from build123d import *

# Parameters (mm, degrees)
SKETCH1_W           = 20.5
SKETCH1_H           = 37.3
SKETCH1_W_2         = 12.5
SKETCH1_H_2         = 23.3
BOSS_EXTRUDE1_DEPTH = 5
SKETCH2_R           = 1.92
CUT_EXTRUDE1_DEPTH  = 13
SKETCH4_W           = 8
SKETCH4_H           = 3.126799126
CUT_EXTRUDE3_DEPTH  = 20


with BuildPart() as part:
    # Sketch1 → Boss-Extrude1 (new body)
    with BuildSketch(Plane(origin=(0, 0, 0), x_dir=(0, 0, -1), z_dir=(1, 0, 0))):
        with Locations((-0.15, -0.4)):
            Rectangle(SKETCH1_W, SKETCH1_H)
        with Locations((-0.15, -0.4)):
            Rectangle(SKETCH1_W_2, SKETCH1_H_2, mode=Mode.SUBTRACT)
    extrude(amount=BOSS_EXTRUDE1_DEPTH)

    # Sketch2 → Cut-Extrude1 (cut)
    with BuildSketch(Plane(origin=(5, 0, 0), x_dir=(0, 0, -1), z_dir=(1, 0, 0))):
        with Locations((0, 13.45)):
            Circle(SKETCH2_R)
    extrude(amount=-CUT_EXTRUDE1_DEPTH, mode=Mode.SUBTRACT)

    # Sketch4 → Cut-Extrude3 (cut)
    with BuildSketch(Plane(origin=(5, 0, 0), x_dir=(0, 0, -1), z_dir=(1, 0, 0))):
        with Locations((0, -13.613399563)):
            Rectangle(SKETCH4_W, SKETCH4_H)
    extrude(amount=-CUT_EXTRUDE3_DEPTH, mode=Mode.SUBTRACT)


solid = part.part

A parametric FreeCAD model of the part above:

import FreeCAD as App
import Part
import Sketcher
from FreeCAD import Vector
Q = App.Units.Quantity

doc = App.newDocument("Part")
params = doc.addObject("Spreadsheet::Sheet", "Params")
for row, (alias, value) in enumerate([
    ("sketch1_width", "37.3 mm"),
    ("sketch1_width2", "23.3 mm"),
    ("sketch1_height", "20.5 mm"),
    ("sketch1_height2", "12.5 mm"),
    ("pad1_length", "5 mm"),
    ("sketch2_diameter", "3.84 mm"),
    ("pocket1_length", "13 mm"),
    ("sketch3_height", "8 mm"),
    ("pocket2_length", "20 mm"),
], start=1):
    params.set(f"A{row}", alias)
    params.set(f"B{row}", "=" + value)
    params.setAlias(f"B{row}", alias)

body = doc.addObject("PartDesign::Body", "Body")

# Sketch on YZ plane
sketch1 = body.newObject("Sketcher::SketchObject", "Sketch")
sketch1.AttachmentSupport = (doc.getObject("YZ_Plane"), [""])
sketch1.MapMode = "FlatFace"
sketch1.addGeometry(Part.LineSegment(Vector(18.25, 10.4, 0), Vector(-19.05, 10.4, 0)), False)
sketch1.addGeometry(Part.LineSegment(Vector(-19.05, 10.4, 0), Vector(-19.05, -10.1, 0)), False)
sketch1.addGeometry(Part.LineSegment(Vector(-19.05, -10.1, 0), Vector(18.25, -10.1, 0)), False)
sketch1.addGeometry(Part.LineSegment(Vector(18.25, -10.1, 0), Vector(18.25, 10.4, 0)), False)
sketch1.addGeometry(Part.LineSegment(Vector(-12.05, -6.1, 0), Vector(-12.05, 6.4, 0)), False)
sketch1.addGeometry(Part.LineSegment(Vector(-12.05, 6.4, 0), Vector(11.25, 6.4, 0)), False)
sketch1.addGeometry(Part.LineSegment(Vector(11.25, 6.4, 0), Vector(11.25, -6.1, 0)), False)
sketch1.addGeometry(Part.LineSegment(Vector(11.25, -6.1, 0), Vector(-12.05, -6.1, 0)), False)
sketch1.addConstraint(Sketcher.Constraint("Coincident", 0, 2, 1, 1))
sketch1.addConstraint(Sketcher.Constraint("Coincident", 1, 2, 2, 1))
sketch1.addConstraint(Sketcher.Constraint("Coincident", 2, 2, 3, 1))
sketch1.addConstraint(Sketcher.Constraint("Coincident", 3, 2, 0, 1))
sketch1.addConstraint(Sketcher.Constraint("Coincident", 4, 2, 5, 1))
sketch1.addConstraint(Sketcher.Constraint("Coincident", 5, 2, 6, 1))
sketch1.addConstraint(Sketcher.Constraint("Coincident", 6, 2, 7, 1))
sketch1.addConstraint(Sketcher.Constraint("Coincident", 7, 2, 4, 1))
sketch1.addConstraint(Sketcher.Constraint("Horizontal", 0))
sketch1.addConstraint(Sketcher.Constraint("Vertical", 1))
sketch1.addConstraint(Sketcher.Constraint("Horizontal", 2))
sketch1.addConstraint(Sketcher.Constraint("Vertical", 3))
sketch1.addConstraint(Sketcher.Constraint("Vertical", 4))
sketch1.addConstraint(Sketcher.Constraint("Horizontal", 5))
sketch1.addConstraint(Sketcher.Constraint("Vertical", 6))
sketch1.addConstraint(Sketcher.Constraint("Horizontal", 7))
sketch1.addConstraint(Sketcher.Constraint("DistanceX", 0, 2, 0, 1, Q("37.3 mm")))
sketch1.addConstraint(Sketcher.Constraint("DistanceX", 5, 1, 5, 2, Q("23.3 mm")))
sketch1.addConstraint(Sketcher.Constraint("DistanceY", 1, 2, 1, 1, Q("20.5 mm")))
sketch1.addConstraint(Sketcher.Constraint("DistanceY", 4, 1, 4, 2, Q("12.5 mm")))
sketch1.addConstraint(Sketcher.Constraint("DistanceX", 0, 2, 4, 2, Q("7 mm")))
sketch1.addConstraint(Sketcher.Constraint("DistanceY", 4, 2, 0, 2, Q("4 mm")))
sketch1.addConstraint(Sketcher.Constraint("DistanceY", -1, 1, 0, 2, Q("10.4 mm")))
sketch1.addConstraint(Sketcher.Constraint("DistanceX", 0, 2, -1, 1, Q("19.05 mm")))
sketch1.setExpression("Constraints[16]", "Params.sketch1_width")
sketch1.setExpression("Constraints[17]", "Params.sketch1_width2")
sketch1.setExpression("Constraints[18]", "Params.sketch1_height")
sketch1.setExpression("Constraints[19]", "Params.sketch1_height2")
pad1 = body.newObject("PartDesign::Pad", "Pad")
pad1.Profile = sketch1
pad1.setExpression("Length", "Params.pad1_length")

# Sketch on YZ plane
sketch2 = body.newObject("Sketcher::SketchObject", "Sketch001")
sketch2.AttachmentSupport = (doc.getObject("YZ_Plane"), [""])
sketch2.MapMode = "FlatFace"
sketch2.AttachmentOffset = App.Placement(Vector(0, 0, 5), App.Rotation())
sketch2.addGeometry(Part.Circle(Vector(13.45, 0, 0), Vector(0, 0, 1), 1.92), False)
sketch2.addConstraint(Sketcher.Constraint("PointOnObject", 0, 3, -1))
sketch2.addConstraint(Sketcher.Constraint("Diameter", 0, Q("3.84 mm")))
sketch2.addConstraint(Sketcher.Constraint("DistanceX", -1, 1, 0, 3, Q("13.45 mm")))
sketch2.setExpression("Constraints[1]", "Params.sketch2_diameter")
pocket1 = body.newObject("PartDesign::Pocket", "Pocket")
pocket1.Profile = sketch2
pocket1.setExpression("Length", "Params.pocket1_length")

# Sketch on YZ plane
sketch3 = body.newObject("Sketcher::SketchObject", "Sketch002")
sketch3.AttachmentSupport = (doc.getObject("YZ_Plane"), [""])
sketch3.MapMode = "FlatFace"
sketch3.AttachmentOffset = App.Placement(Vector(0, 0, 5), App.Rotation())
sketch3.addGeometry(Part.LineSegment(Vector(-12.05, 4, 0), Vector(-15.176799, 4, 0)), False)
sketch3.addGeometry(Part.LineSegment(Vector(-15.176799, 4, 0), Vector(-15.176799, -4, 0)), False)
sketch3.addGeometry(Part.LineSegment(Vector(-15.176799, -4, 0), Vector(-12.05, -4, 0)), False)
sketch3.addGeometry(Part.LineSegment(Vector(-12.05, -4, 0), Vector(-12.05, 4, 0)), False)
sketch3.addConstraint(Sketcher.Constraint("Coincident", 0, 2, 1, 1))
sketch3.addConstraint(Sketcher.Constraint("Coincident", 1, 2, 2, 1))
sketch3.addConstraint(Sketcher.Constraint("Coincident", 2, 2, 3, 1))
sketch3.addConstraint(Sketcher.Constraint("Coincident", 3, 2, 0, 1))
sketch3.addConstraint(Sketcher.Constraint("Horizontal", 0))
sketch3.addConstraint(Sketcher.Constraint("Vertical", 1))
sketch3.addConstraint(Sketcher.Constraint("Horizontal", 2))
sketch3.addConstraint(Sketcher.Constraint("Vertical", 3))
sketch3.addConstraint(Sketcher.Constraint("DistanceY", 1, 2, 1, 1, Q("8 mm")))
sketch3.addConstraint(Sketcher.Constraint("DistanceY", -1, 1, 0, 2, Q("4 mm")))
sketch3.addConstraint(Sketcher.Constraint("DistanceX", 2, 2, -1, 1, Q("12.05 mm")))
sketch3.addConstraint(Sketcher.Constraint("DistanceX", 0, 2, 0, 1, Q("3.126799 mm")))
sketch3.setExpression("Constraints[8]", "Params.sketch3_height")
pocket2 = body.newObject("PartDesign::Pocket", "Pocket001")
pocket2.Profile = sketch3
pocket2.setExpression("Length", "Params.pocket2_length")

doc.recompute()
